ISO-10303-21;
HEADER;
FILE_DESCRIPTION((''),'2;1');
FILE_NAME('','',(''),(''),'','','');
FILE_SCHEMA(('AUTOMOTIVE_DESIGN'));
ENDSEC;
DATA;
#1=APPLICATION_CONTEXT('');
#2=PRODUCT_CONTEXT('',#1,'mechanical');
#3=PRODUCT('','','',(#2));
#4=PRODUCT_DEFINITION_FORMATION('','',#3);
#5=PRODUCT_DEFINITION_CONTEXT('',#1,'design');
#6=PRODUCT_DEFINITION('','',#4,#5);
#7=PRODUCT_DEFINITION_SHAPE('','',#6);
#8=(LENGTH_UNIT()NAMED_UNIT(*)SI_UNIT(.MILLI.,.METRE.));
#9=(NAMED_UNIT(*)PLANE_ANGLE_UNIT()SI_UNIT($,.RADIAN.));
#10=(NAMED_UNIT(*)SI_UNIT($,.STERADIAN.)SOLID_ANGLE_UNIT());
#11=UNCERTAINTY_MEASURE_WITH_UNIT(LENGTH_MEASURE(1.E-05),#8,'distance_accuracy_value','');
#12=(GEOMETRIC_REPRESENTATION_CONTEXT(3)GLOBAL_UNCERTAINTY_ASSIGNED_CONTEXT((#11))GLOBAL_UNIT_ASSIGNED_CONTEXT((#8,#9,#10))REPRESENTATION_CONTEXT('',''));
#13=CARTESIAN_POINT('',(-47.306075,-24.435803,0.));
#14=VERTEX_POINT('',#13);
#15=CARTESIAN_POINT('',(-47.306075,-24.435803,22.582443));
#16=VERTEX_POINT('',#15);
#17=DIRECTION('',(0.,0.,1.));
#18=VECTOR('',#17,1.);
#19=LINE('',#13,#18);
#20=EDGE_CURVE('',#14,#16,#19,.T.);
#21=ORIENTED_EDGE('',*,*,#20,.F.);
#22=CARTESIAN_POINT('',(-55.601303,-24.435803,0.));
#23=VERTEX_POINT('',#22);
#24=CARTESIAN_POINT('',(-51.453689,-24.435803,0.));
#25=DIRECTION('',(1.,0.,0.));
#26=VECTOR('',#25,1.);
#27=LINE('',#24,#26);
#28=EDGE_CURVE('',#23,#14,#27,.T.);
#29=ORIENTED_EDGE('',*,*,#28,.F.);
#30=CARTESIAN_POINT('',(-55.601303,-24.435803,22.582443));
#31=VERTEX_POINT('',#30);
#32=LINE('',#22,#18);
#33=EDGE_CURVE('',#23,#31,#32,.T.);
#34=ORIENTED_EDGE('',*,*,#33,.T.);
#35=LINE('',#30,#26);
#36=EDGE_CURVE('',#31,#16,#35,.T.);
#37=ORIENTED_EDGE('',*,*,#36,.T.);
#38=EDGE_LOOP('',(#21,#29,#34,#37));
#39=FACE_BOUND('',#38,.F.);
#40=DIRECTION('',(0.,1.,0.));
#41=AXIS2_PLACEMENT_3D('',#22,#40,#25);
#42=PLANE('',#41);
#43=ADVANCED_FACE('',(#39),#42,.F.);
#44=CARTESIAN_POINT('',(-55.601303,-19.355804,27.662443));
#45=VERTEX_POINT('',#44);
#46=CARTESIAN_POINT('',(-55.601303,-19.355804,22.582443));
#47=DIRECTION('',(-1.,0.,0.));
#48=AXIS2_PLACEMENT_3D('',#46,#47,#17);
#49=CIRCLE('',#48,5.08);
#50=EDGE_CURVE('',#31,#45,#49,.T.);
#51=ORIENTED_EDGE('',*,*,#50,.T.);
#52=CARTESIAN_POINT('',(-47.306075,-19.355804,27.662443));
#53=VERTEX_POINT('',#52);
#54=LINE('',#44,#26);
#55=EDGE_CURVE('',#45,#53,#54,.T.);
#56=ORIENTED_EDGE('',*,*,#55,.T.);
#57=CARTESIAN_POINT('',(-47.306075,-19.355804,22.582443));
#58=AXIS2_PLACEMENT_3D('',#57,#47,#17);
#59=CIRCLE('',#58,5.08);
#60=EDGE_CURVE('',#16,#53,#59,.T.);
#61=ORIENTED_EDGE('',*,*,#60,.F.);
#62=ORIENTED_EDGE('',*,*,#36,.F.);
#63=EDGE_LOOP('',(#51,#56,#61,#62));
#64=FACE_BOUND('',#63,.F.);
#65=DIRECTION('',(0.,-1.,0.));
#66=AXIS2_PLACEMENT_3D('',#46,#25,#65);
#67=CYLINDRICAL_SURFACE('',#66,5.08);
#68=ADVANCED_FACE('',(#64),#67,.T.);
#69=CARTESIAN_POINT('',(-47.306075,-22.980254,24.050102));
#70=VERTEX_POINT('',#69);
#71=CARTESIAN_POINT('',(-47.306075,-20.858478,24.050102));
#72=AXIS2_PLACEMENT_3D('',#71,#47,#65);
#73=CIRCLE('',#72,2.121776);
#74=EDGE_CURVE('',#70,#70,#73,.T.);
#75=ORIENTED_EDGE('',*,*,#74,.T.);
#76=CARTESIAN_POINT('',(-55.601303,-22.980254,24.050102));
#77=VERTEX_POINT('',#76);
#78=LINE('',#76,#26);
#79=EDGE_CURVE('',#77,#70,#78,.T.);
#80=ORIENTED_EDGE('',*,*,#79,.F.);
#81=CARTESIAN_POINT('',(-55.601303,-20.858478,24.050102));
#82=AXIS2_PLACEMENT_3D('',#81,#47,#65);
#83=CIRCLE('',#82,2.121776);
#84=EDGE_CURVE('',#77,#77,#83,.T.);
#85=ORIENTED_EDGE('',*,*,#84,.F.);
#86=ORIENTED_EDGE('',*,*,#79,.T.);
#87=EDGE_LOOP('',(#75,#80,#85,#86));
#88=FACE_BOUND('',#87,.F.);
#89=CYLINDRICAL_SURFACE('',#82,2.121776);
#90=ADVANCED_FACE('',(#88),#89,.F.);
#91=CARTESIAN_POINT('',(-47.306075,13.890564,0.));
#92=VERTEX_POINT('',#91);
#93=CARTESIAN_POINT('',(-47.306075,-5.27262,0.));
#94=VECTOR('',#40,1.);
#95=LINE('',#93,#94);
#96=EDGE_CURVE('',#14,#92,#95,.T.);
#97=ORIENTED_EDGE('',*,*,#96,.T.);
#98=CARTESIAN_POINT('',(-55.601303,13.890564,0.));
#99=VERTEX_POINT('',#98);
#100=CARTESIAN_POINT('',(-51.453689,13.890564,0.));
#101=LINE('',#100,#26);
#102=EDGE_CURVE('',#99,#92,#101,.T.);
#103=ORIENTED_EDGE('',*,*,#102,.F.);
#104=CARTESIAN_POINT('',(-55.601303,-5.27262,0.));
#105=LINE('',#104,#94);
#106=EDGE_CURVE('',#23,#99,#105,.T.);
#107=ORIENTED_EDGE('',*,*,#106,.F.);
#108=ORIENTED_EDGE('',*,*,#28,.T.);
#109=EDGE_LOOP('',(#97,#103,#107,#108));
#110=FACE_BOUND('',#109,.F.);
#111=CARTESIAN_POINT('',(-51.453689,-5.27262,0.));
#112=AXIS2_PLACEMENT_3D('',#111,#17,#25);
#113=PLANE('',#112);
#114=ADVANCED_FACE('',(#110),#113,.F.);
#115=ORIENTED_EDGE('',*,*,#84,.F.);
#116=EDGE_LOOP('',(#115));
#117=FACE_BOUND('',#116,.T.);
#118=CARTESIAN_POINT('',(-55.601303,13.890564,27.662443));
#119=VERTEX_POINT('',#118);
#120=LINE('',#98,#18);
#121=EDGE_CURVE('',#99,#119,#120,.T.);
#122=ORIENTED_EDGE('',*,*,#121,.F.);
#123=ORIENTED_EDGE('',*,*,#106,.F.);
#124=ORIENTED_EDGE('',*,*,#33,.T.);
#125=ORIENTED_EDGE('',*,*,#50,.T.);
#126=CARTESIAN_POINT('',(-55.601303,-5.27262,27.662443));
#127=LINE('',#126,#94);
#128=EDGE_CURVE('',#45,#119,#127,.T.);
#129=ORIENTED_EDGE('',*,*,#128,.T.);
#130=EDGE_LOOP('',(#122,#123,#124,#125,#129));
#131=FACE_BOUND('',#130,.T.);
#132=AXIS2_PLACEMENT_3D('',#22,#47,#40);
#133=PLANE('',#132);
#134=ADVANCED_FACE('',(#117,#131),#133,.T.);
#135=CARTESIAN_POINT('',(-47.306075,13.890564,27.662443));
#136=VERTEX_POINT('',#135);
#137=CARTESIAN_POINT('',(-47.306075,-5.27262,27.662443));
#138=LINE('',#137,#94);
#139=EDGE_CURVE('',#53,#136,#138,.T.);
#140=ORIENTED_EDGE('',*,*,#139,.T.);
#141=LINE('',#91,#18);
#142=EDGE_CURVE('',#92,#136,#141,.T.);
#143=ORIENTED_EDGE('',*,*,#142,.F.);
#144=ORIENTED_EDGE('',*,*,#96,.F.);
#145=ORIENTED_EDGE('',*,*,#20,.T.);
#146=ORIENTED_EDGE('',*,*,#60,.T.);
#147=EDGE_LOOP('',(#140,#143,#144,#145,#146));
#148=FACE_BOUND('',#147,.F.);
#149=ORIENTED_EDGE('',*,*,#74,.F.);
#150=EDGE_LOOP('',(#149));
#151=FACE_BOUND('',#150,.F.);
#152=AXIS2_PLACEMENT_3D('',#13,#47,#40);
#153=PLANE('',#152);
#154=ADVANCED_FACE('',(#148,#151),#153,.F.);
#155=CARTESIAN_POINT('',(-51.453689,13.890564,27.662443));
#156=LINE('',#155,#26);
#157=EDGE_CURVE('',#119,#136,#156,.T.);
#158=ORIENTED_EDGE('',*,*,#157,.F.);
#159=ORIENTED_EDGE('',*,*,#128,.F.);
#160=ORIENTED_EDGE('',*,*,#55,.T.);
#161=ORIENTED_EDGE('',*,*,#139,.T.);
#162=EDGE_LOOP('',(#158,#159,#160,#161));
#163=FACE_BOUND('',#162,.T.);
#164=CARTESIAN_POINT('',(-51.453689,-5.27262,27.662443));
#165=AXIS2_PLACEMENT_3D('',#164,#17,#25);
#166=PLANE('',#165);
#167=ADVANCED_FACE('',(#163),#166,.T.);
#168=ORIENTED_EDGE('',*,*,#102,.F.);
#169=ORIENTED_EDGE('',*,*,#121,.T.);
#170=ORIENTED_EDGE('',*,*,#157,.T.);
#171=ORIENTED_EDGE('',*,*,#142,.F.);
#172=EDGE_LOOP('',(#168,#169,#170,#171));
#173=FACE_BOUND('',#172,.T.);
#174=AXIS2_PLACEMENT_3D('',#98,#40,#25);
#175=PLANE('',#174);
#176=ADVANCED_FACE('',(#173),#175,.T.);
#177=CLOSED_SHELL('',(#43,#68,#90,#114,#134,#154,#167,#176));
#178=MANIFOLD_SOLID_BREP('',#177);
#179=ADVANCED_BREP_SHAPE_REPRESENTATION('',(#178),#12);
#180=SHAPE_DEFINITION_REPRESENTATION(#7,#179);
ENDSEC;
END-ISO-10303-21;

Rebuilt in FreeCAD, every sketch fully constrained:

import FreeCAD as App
import Part
import Sketcher
from FreeCAD import Vector
Q = App.Units.Quantity


def edges_at(feature, points):
    """Names of the edges that pass closest to the given points."""
    edges = feature.Shape.Edges
    near = lambda p: min(range(len(edges)), key=lambda i: edges[i].distToShape(Part.Vertex(*p))[0])
    return sorted({f"Edge{near(p) + 1}" for p in points})

doc = App.newDocument("Part")
body = doc.addObject("PartDesign::Body", "Body")

# Sketch on XY plane
sketch1 = body.newObject("Sketcher::SketchObject", "Sketch")
sketch1.AttachmentSupport = (doc.getObject("XY_Plane"), [""])
sketch1.MapMode = "FlatFace"
sketch1.addGeometry(Part.LineSegment(Vector(-56, 14, 0), Vector(-56, -24, 0)), False)
sketch1.addGeometry(Part.LineSegment(Vector(-56, -24, 0), Vector(-47, -24, 0)), False)
sketch1.addGeometry(Part.LineSegment(Vector(-47, -24, 0), Vector(-47, 14, 0)), False)
sketch1.addGeometry(Part.LineSegment(Vector(-47, 14, 0), Vector(-56, 14, 0)), False)
sketch1.addConstraint(Sketcher.Constraint("Coincident", 0, 2, 1, 1))
sketch1.addConstraint(Sketcher.Constraint("Coincident", 1, 2, 2, 1))
sketch1.addConstraint(Sketcher.Constraint("Coincident", 2, 2, 3, 1))
sketch1.addConstraint(Sketcher.Constraint("Coincident", 3, 2, 0, 1))
sketch1.addConstraint(Sketcher.Constraint("Vertical", 0))
sketch1.addConstraint(Sketcher.Constraint("Horizontal", 1))
sketch1.addConstraint(Sketcher.Constraint("Vertical", 2))
sketch1.addConstraint(Sketcher.Constraint("Horizontal", 3))
sketch1.addConstraint(Sketcher.Constraint("DistanceX", 1, 1, 1, 2, Q("8.295227 mm")))
sketch1.addConstraint(Sketcher.Constraint("DistanceY", 0, 2, 0, 1, Q("38.326367 mm")))
sketch1.addConstraint(Sketcher.Constraint("DistanceX", 0, 2, -1, 1, Q("55.601303 mm")))
sketch1.addConstraint(Sketcher.Constraint("DistanceY", 0, 2, -1, 1, Q("24.435803 mm")))
pad1 = body.newObject("PartDesign::Pad", "Pad")
pad1.Profile = sketch1
pad1.Length = 27.662443
doc.recompute()

fillet = body.newObject("PartDesign::Fillet", "Fillet")
fillet.Base = (pad1, edges_at(pad1, [(-51.454, -24.436, 27.662)]))
fillet.Radius = Q("0.2 in")

# Sketch on YZ plane
sketch2 = body.newObject("Sketcher::SketchObject", "Sketch001")
sketch2.AttachmentSupport = (doc.getObject("YZ_Plane"), [""])
sketch2.MapMode = "FlatFace"
sketch2.AttachmentOffset = App.Placement(Vector(0, 0, -55.601303), App.Rotation())
sketch2.addGeometry(Part.Circle(Vector(-20.9, 24.1, 0), Vector(0, 0, 1), 2.1), False)
sketch2.addConstraint(Sketcher.Constraint("Diameter", 0, Q("4.243552 mm")))
sketch2.addConstraint(Sketcher.Constraint("DistanceX", 0, 3, -1, 1, Q("0.8211999 in")))
sketch2.addConstraint(Sketcher.Constraint("DistanceY", -1, 1, 0, 3, Q("24.050102 mm")))
pocket1 = body.newObject("PartDesign::Pocket", "Pocket")
pocket1.Profile = sketch2
pocket1.Length = Q("1 in")
pocket1.Reversed = True

doc.recompute()
